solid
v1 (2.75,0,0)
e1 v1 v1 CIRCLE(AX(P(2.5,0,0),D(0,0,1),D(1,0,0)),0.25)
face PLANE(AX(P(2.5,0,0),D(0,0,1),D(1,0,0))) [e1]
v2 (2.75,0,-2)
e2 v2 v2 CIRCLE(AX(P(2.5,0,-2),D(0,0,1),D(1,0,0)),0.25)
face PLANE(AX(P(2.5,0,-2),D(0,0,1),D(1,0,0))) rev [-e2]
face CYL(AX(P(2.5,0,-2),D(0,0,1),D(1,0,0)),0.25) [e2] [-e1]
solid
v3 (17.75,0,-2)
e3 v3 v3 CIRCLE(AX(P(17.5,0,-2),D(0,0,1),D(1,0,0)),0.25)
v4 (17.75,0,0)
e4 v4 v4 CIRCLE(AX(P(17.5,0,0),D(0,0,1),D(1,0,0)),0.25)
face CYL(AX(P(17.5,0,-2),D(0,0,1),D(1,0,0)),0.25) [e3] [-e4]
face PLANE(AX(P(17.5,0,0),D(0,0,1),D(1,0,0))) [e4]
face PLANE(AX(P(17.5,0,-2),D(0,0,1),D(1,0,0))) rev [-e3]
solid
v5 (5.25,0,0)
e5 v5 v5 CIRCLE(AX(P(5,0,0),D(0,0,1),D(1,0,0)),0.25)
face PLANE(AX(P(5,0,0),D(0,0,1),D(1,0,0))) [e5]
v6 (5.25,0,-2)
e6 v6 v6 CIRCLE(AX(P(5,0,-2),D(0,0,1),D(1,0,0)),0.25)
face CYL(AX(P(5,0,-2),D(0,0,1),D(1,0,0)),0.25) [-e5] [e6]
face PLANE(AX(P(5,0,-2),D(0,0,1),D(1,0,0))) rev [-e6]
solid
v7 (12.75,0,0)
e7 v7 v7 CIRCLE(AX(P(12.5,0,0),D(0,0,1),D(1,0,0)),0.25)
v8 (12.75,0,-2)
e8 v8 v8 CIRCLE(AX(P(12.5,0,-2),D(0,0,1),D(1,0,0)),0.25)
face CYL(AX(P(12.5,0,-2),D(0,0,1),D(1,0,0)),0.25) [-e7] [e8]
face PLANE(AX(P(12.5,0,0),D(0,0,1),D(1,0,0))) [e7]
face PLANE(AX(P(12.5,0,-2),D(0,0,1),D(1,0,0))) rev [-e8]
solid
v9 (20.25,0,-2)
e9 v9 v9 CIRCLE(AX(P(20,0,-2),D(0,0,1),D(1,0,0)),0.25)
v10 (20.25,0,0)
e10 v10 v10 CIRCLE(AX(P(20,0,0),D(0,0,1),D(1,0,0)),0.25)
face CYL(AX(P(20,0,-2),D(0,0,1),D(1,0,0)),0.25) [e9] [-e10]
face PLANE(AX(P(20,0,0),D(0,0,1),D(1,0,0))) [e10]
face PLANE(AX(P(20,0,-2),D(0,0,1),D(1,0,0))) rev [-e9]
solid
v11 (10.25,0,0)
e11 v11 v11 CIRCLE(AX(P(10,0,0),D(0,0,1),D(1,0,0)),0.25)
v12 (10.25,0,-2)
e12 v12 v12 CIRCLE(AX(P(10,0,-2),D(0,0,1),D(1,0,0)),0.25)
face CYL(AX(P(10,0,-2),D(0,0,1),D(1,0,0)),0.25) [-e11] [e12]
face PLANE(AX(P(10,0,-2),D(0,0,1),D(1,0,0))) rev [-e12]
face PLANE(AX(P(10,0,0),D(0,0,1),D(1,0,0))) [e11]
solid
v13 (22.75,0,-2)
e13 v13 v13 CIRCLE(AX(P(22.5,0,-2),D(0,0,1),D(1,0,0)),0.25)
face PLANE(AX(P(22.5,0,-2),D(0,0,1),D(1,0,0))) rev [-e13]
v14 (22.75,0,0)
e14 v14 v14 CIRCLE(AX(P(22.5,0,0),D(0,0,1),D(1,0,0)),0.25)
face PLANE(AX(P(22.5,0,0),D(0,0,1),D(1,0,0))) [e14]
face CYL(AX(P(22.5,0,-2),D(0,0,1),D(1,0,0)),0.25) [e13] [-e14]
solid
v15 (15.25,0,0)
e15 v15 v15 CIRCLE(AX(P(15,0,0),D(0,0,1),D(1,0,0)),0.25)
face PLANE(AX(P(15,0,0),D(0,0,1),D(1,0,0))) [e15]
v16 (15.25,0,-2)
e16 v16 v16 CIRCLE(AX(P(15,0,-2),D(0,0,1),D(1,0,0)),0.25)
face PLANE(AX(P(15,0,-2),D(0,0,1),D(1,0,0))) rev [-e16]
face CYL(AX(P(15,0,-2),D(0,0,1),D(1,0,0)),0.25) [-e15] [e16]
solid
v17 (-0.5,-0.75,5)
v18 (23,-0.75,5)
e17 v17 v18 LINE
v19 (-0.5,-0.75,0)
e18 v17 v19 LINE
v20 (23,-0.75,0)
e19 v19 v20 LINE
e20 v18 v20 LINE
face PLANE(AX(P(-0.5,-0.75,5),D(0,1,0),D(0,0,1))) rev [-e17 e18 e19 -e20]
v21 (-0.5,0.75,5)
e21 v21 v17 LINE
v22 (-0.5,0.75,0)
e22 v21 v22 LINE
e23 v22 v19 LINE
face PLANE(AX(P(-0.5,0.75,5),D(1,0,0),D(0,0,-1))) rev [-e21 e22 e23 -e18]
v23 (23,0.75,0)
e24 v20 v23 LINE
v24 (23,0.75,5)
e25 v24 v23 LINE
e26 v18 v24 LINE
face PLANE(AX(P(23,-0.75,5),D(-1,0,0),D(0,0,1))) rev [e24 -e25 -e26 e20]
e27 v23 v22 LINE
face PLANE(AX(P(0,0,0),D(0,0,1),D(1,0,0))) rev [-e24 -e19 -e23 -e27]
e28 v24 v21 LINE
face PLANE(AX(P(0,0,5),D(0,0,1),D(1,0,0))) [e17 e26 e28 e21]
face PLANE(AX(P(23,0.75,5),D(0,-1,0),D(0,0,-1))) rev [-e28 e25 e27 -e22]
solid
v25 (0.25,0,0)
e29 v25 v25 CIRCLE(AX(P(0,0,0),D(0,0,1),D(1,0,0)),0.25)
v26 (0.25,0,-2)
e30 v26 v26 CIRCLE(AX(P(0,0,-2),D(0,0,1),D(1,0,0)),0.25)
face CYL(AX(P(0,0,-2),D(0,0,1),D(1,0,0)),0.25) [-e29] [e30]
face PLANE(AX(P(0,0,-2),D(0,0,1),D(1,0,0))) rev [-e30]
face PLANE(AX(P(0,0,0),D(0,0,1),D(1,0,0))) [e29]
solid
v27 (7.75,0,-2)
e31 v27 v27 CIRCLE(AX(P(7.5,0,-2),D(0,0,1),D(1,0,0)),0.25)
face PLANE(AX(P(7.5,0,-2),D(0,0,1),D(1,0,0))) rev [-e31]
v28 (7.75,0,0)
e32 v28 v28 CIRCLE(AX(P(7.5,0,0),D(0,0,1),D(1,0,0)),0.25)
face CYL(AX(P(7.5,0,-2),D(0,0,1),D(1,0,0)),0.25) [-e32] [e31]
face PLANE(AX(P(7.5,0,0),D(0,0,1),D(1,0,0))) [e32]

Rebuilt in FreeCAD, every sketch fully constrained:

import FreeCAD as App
import Part
import Sketcher

V = App.Vector

doc = App.newDocument("Part")
body = doc.addObject("PartDesign::Body", "Body")

sketch1 = body.newObject("Sketcher::SketchObject", "Sketch")
sketch1.AttachmentSupport = (doc.getObject("XY_Plane"), [""])
sketch1.MapMode = "FlatFace"
sketch1.addGeometry([
    Part.LineSegment(V(-0.5, 0.8, 0), V(-0.5, -0.8, 0)),
    Part.LineSegment(V(-0.5, -0.8, 0), V(23, -0.8, 0)),
    Part.LineSegment(V(23, -0.8, 0), V(23, 0.8, 0)),
    Part.LineSegment(V(23, 0.8, 0), V(-0.5, 0.8, 0)),
], False)
sketch1.addConstraint([
    Sketcher.Constraint("Coincident", 0, 2, 1, 1),
    Sketcher.Constraint("Coincident", 1, 2, 2, 1),
    Sketcher.Constraint("Coincident", 2, 2, 3, 1),
    Sketcher.Constraint("Coincident", 3, 2, 0, 1),
    Sketcher.Constraint("Vertical", 0),
    Sketcher.Constraint("Horizontal", 1),
    Sketcher.Constraint("Vertical", 2),
    Sketcher.Constraint("Horizontal", 3),
    Sketcher.Constraint("DistanceX", 1, 1, 1, 2, 23.5),
    Sketcher.Constraint("DistanceY", 0, 2, 0, 1, 1.5),
    Sketcher.Constraint("DistanceX", -1, 1, 1, 2, 23.0),
    Sketcher.Constraint("DistanceY", 0, 2, -1, 1, 0.75),
])
pad1 = body.newObject("PartDesign::Pad", "Pad")
pad1.Profile = sketch1
pad1.Length = 5
body2 = doc.addObject("PartDesign::Body", "Body001")

sketch2 = body2.newObject("Sketcher::SketchObject", "Sketch001")
sketch2.AttachmentSupport = (doc.getObject("XY_Plane001"), [""])
sketch2.MapMode = "FlatFace"
sketch2.addGeometry(Part.Circle(V(0, 0, 0), V(0, 0, 1), 0.25), False)
sketch2.addConstraint([
    Sketcher.Constraint("Coincident", 0, 3, -1, 1),
    Sketcher.Constraint("Diameter", 0, 0.5),
])
pad2 = body2.newObject("PartDesign::Pad", "Pad001")
pad2.Profile = sketch2
pad2.Length = 2
pad2.Reversed = True
body3 = doc.addObject("PartDesign::Body", "Body002")

sketch3 = body3.newObject("Sketcher::SketchObject", "Sketch002")
sketch3.AttachmentSupport = (doc.getObject("XY_Plane002"), [""])
sketch3.MapMode = "FlatFace"
sketch3.addGeometry(Part.Circle(V(2.5, 0, 0), V(0, 0, 1), 0.25), False)
sketch3.addConstraint([
    Sketcher.Constraint("PointOnObject", 0, 3, -1),
    Sketcher.Constraint("Diameter", 0, 0.5),
    Sketcher.Constraint("DistanceX", -1, 1, 0, 3, 2.5),
])
pad3 = body3.newObject("PartDesign::Pad", "Pad002")
pad3.Profile = sketch3
pad3.Length = 2
pad3.Reversed = True
body4 = doc.addObject("PartDesign::Body", "Body003")

sketch4 = body4.newObject("Sketcher::SketchObject", "Sketch003")
sketch4.AttachmentSupport = (doc.getObject("XY_Plane003"), [""])
sketch4.MapMode = "FlatFace"
sketch4.addGeometry(Part.Circle(V(5, 0, 0), V(0, 0, 1), 0.25), False)
sketch4.addConstraint([
    Sketcher.Constraint("PointOnObject", 0, 3, -1),
    Sketcher.Constraint("Diameter", 0, 0.5),
    Sketcher.Constraint("DistanceX", -1, 1, 0, 3, 5.0),
])
pad4 = body4.newObject("PartDesign::Pad", "Pad003")
pad4.Profile = sketch4
pad4.Length = 2
pad4.Reversed = True
body5 = doc.addObject("PartDesign::Body", "Body004")

sketch5 = body5.newObject("Sketcher::SketchObject", "Sketch004")
sketch5.AttachmentSupport = (doc.getObject("XY_Plane004"), [""])
sketch5.MapMode = "FlatFace"
sketch5.addGeometry(Part.Circle(V(7.5, 0, 0), V(0, 0, 1), 0.25), False)
sketch5.addConstraint([
    Sketcher.Constraint("PointOnObject", 0, 3, -1),
    Sketcher.Constraint("Diameter", 0, 0.5),
    Sketcher.Constraint("DistanceX", -1, 1, 0, 3, 7.5),
])
pad5 = body5.newObject("PartDesign::Pad", "Pad004")
pad5.Profile = sketch5
pad5.Length = 2
pad5.Reversed = True
body6 = doc.addObject("PartDesign::Body", "Body005")

sketch6 = body6.newObject("Sketcher::SketchObject", "Sketch005")
sketch6.AttachmentSupport = (doc.getObject("XY_Plane005"), [""])
sketch6.MapMode = "FlatFace"
sketch6.addGeometry(Part.Circle(V(10, 0, 0), V(0, 0, 1), 0.25), False)
sketch6.addConstraint([
    Sketcher.Constraint("PointOnObject", 0, 3, -1),
    Sketcher.Constraint("Diameter", 0, 0.5),
    Sketcher.Constraint("DistanceX", -1, 1, 0, 3, 10.0),
])
pad6 = body6.newObject("PartDesign::Pad", "Pad005")
pad6.Profile = sketch6
pad6.Length = 2
pad6.Reversed = True
body7 = doc.addObject("PartDesign::Body", "Body006")

sketch7 = body7.newObject("Sketcher::SketchObject", "Sketch006")
sketch7.AttachmentSupport = (doc.getObject("XY_Plane006"), [""])
sketch7.MapMode = "FlatFace"
sketch7.addGeometry(Part.Circle(V(12.5, 0, 0), V(0, 0, 1), 0.25), False)
sketch7.addConstraint([
    Sketcher.Constraint("PointOnObject", 0, 3, -1),
    Sketcher.Constraint("Diameter", 0, 0.5),
    Sketcher.Constraint("DistanceX", -1, 1, 0, 3, 12.5),
])
pad7 = body7.newObject("PartDesign::Pad", "Pad006")
pad7.Profile = sketch7
pad7.Length = 2
pad7.Reversed = True
body8 = doc.addObject("PartDesign::Body", "Body007")

sketch8 = body8.newObject("Sketcher::SketchObject", "Sketch007")
sketch8.AttachmentSupport = (doc.getObject("XY_Plane007"), [""])
sketch8.MapMode = "FlatFace"
sketch8.addGeometry(Part.Circle(V(15, 0, 0), V(0, 0, 1), 0.25), False)
sketch8.addConstraint([
    Sketcher.Constraint("PointOnObject", 0, 3, -1),
    Sketcher.Constraint("Diameter", 0, 0.5),
    Sketcher.Constraint("DistanceX", -1, 1, 0, 3, 15.0),
])
pad8 = body8.newObject("PartDesign::Pad", "Pad007")
pad8.Profile = sketch8
pad8.Length = 2
pad8.Reversed = True
body9 = doc.addObject("PartDesign::Body", "Body008")

sketch9 = body9.newObject("Sketcher::SketchObject", "Sketch008")
sketch9.AttachmentSupport = (doc.getObject("XY_Plane008"), [""])
sketch9.MapMode = "FlatFace"
sketch9.addGeometry(Part.Circle(V(17.5, 0, 0), V(0, 0, 1), 0.25), False)
sketch9.addConstraint([
    Sketcher.Constraint("PointOnObject", 0, 3, -1),
    Sketcher.Constraint("Diameter", 0, 0.5),
    Sketcher.Constraint("DistanceX", -1, 1, 0, 3, 17.5),
])
pad9 = body9.newObject("PartDesign::Pad", "Pad008")
pad9.Profile = sketch9
pad9.Length = 2
pad9.Reversed = True
body10 = doc.addObject("PartDesign::Body", "Body009")

sketch10 = body10.newObject("Sketcher::SketchObject", "Sketch009")
sketch10.AttachmentSupport = (doc.getObject("XY_Plane009"), [""])
sketch10.MapMode = "FlatFace"
sketch10.addGeometry(Part.Circle(V(20, 0, 0), V(0, 0, 1), 0.25), False)
sketch10.addConstraint([
    Sketcher.Constraint("PointOnObject", 0, 3, -1),
    Sketcher.Constraint("Diameter", 0, 0.5),
    Sketcher.Constraint("DistanceX", -1, 1, 0, 3, 20.0),
])
pad10 = body10.newObject("PartDesign::Pad", "Pad009")
pad10.Profile = sketch10
pad10.Length = 2
pad10.Reversed = True
body11 = doc.addObject("PartDesign::Body", "Body010")

sketch11 = body11.newObject("Sketcher::SketchObject", "Sketch010")
sketch11.AttachmentSupport = (doc.getObject("XY_Plane010"), [""])
sketch11.MapMode = "FlatFace"
sketch11.addGeometry(Part.Circle(V(22.5, 0, 0), V(0, 0, 1), 0.25), False)
sketch11.addConstraint([
    Sketcher.Constraint("PointOnObject", 0, 3, -1),
    Sketcher.Constraint("Diameter", 0, 0.5),
    Sketcher.Constraint("DistanceX", -1, 1, 0, 3, 22.5),
])
pad11 = body11.newObject("PartDesign::Pad", "Pad010")
pad11.Profile = sketch11
pad11.Length = 2
pad11.Reversed = True

doc.recompute()
